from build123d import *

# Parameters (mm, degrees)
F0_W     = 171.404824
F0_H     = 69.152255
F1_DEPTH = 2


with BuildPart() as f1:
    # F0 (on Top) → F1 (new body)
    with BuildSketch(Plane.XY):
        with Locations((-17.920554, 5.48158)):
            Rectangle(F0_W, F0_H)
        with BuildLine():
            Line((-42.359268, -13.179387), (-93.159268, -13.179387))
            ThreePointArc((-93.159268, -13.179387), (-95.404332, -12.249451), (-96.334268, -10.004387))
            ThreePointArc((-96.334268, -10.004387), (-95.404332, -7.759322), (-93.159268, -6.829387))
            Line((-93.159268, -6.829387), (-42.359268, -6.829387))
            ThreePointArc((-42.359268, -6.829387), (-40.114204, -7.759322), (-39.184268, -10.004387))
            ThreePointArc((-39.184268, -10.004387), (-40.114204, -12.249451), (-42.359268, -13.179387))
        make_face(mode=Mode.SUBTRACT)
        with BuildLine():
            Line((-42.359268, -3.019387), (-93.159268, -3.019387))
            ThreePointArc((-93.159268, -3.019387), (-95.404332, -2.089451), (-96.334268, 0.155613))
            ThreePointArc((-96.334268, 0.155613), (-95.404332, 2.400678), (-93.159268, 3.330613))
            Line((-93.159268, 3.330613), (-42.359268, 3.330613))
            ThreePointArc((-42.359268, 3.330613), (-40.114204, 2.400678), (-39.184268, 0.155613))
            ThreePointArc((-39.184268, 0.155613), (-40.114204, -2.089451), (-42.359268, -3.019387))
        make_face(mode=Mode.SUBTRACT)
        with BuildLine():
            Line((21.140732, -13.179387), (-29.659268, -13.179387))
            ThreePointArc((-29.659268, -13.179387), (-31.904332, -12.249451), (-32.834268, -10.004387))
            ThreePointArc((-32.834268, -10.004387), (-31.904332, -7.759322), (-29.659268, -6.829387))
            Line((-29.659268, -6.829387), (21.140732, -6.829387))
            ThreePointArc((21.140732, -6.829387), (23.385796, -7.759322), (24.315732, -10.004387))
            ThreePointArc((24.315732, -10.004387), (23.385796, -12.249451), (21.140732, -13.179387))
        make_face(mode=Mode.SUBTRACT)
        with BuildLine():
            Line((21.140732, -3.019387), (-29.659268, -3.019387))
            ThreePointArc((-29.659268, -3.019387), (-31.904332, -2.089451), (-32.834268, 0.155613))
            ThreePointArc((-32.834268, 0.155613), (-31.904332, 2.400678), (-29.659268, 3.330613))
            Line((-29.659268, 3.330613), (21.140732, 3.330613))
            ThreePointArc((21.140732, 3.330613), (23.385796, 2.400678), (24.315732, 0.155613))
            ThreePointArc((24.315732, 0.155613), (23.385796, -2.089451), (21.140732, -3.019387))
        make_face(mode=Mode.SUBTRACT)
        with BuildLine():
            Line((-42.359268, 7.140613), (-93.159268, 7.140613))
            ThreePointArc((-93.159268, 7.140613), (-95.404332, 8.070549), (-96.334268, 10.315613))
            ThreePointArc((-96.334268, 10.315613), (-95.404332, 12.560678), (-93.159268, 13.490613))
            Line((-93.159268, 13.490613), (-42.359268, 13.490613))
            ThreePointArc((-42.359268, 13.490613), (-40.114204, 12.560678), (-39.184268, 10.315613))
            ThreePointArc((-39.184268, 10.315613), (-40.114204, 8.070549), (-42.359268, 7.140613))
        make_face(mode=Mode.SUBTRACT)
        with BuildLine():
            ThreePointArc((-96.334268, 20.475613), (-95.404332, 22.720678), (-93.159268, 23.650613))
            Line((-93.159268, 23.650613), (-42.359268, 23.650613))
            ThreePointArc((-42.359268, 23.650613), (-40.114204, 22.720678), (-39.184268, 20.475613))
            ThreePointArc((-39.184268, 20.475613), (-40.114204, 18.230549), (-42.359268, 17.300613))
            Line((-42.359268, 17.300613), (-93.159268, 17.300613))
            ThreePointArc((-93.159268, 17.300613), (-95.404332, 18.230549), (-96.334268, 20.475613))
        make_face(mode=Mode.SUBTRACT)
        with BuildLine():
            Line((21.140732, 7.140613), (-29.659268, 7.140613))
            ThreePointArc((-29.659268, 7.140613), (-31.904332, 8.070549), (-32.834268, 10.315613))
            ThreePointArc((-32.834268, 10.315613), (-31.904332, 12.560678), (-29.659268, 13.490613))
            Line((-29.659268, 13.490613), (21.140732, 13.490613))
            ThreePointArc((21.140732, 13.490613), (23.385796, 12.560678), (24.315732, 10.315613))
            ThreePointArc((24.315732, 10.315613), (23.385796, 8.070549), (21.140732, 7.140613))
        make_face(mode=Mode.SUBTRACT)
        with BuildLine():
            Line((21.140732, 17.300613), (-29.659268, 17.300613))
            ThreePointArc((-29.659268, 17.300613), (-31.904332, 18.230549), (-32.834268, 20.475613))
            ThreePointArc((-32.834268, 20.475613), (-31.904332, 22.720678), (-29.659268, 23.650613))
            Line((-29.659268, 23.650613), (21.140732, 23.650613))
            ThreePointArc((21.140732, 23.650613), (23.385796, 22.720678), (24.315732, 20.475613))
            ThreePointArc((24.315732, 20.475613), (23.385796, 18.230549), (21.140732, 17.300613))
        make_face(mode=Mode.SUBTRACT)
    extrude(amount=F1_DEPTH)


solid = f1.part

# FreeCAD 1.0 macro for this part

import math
import FreeCAD as App
import Part
import Sketcher
from FreeCAD import Vector
Q = App.Units.Quantity


def add_polygon(sketch, points):
    """Adds a closed chain of lines whose ends are joined by coincident constraints."""
    first, n = sketch.GeometryCount, len(points)
    for a, b in zip(points, points[1:] + points[:1]):
        sketch.addGeometry(Part.LineSegment(App.Vector(*a, 0), App.Vector(*b, 0)), False)
    for i in range(n):
        sketch.addConstraint(Sketcher.Constraint("Coincident", first + i, 2, first + (i + 1) % n, 1))

doc = App.newDocument("Part")
body = doc.addObject("PartDesign::Body", "Body")

sketch1 = body.newObject("Sketcher::SketchObject", "Sketch")
sketch1.AttachmentSupport = (doc.getObject("XY_Plane"), [""])
sketch1.MapMode = "FlatFace"
add_polygon(sketch1, [(-103.6, 40.1), (-103.6, -29.1), (67.8, -29.1), (67.8, 40.1)])
sketch1.addGeometry(Part.ArcOfCircle(Part.Circle(Vector(-42.4, -10, 0), Vector(0, 0, 1), 3.2), math.radians(-90), math.radians(0)), False)
sketch1.addGeometry(Part.LineSegment(Vector(-42.4, -13.2, 0), Vector(-93.2, -13.2, 0)), False)
sketch1.addGeometry(Part.ArcOfCircle(Part.Circle(Vector(-93.2, -10, 0), Vector(0, 0, 1), 3.2), math.radians(-180), math.radians(-90)), False)
sketch1.addGeometry(Part.ArcOfCircle(Part.Circle(Vector(-93.2, -10, 0), Vector(0, 0, 1), 3.2), math.radians(90), math.radians(180)), False)
sketch1.addGeometry(Part.LineSegment(Vector(-93.2, -6.8, 0), Vector(-42.4, -6.8, 0)), False)
sketch1.addGeometry(Part.ArcOfCircle(Part.Circle(Vector(-42.4, -10, 0), Vector(0, 0, 1), 3.2), math.radians(0), math.radians(90)), False)
sketch1.addGeometry(Part.ArcOfCircle(Part.Circle(Vector(-42.4, 0.2, 0), Vector(0, 0, 1), 3.2), math.radians(-90), math.radians(0)), False)
sketch1.addGeometry(Part.LineSegment(Vector(-42.4, -3, 0), Vector(-93.2, -3, 0)), False)
sketch1.addGeometry(Part.ArcOfCircle(Part.Circle(Vector(-93.2, 0.2, 0), Vector(0, 0, 1), 3.2), math.radians(-180), math.radians(-90)), False)
sketch1.addGeometry(Part.ArcOfCircle(Part.Circle(Vector(-93.2, 0.2, 0), Vector(0, 0, 1), 3.2), math.radians(90), math.radians(180)), False)
sketch1.addGeometry(Part.LineSegment(Vector(-93.2, 3.3, 0), Vector(-42.4, 3.3, 0)), False)
sketch1.addGeometry(Part.ArcOfCircle(Part.Circle(Vector(-42.4, 0.2, 0), Vector(0, 0, 1), 3.2), math.radians(0), math.radians(90)), False)
sketch1.addGeometry(Part.ArcOfCircle(Part.Circle(Vector(21.1, -10, 0), Vector(0, 0, 1), 3.2), math.radians(-90), math.radians(0)), False)
sketch1.addGeometry(Part.LineSegment(Vector(21.1, -13.2, 0), Vector(-29.7, -13.2, 0)), False)
sketch1.addGeometry(Part.ArcOfCircle(Part.Circle(Vector(-29.7, -10, 0), Vector(0, 0, 1), 3.2), math.radians(-180), math.radians(-90)), False)
sketch1.addGeometry(Part.ArcOfCircle(Part.Circle(Vector(-29.7, -10, 0), Vector(0, 0, 1), 3.2), math.radians(90), math.radians(180)), False)
sketch1.addGeometry(Part.LineSegment(Vector(-29.7, -6.8, 0), Vector(21.1, -6.8, 0)), False)
sketch1.addGeometry(Part.ArcOfCircle(Part.Circle(Vector(21.1, -10, 0), Vector(0, 0, 1), 3.2), math.radians(0), math.radians(90)), False)
sketch1.addGeometry(Part.ArcOfCircle(Part.Circle(Vector(21.1, 0.2, 0), Vector(0, 0, 1), 3.2), math.radians(-90), math.radians(0)), False)
sketch1.addGeometry(Part.LineSegment(Vector(21.1, -3, 0), Vector(-29.7, -3, 0)), False)
sketch1.addGeometry(Part.ArcOfCircle(Part.Circle(Vector(-29.7, 0.2, 0), Vector(0, 0, 1), 3.2), math.radians(-180), math.radians(-90)), False)
sketch1.addGeometry(Part.ArcOfCircle(Part.Circle(Vector(-29.7, 0.2, 0), Vector(0, 0, 1), 3.2), math.radians(90), math.radians(180)), False)
sketch1.addGeometry(Part.LineSegment(Vector(-29.7, 3.3, 0), Vector(21.1, 3.3, 0)), False)
sketch1.addGeometry(Part.ArcOfCircle(Part.Circle(Vector(21.1, 0.2, 0), Vector(0, 0, 1), 3.2), math.radians(0), math.radians(90)), False)
sketch1.addGeometry(Part.ArcOfCircle(Part.Circle(Vector(-42.4, 10.3, 0), Vector(0, 0, 1), 3.2), math.radians(-90), math.radians(0)), False)
sketch1.addGeometry(Part.LineSegment(Vector(-42.4, 7.1, 0), Vector(-93.2, 7.1, 0)), False)
sketch1.addGeometry(Part.ArcOfCircle(Part.Circle(Vector(-93.2, 10.3, 0), Vector(0, 0, 1), 3.2), math.radians(-180), math.radians(-90)), False)
sketch1.addGeometry(Part.ArcOfCircle(Part.Circle(Vector(-93.2, 10.3, 0), Vector(0, 0, 1), 3.2), math.radians(90), math.radians(180)), False)
sketch1.addGeometry(Part.LineSegment(Vector(-93.2, 13.5, 0), Vector(-42.4, 13.5, 0)), False)
sketch1.addGeometry(Part.ArcOfCircle(Part.Circle(Vector(-42.4, 10.3, 0), Vector(0, 0, 1), 3.2), math.radians(0), math.radians(90)), False)
sketch1.addGeometry(Part.ArcOfCircle(Part.Circle(Vector(-93.2, 20.5, 0), Vector(0, 0, 1), 3.2), math.radians(-180), math.radians(-90)), False)
sketch1.addGeometry(Part.ArcOfCircle(Part.Circle(Vector(-93.2, 20.5, 0), Vector(0, 0, 1), 3.2), math.radians(90), math.radians(180)), False)
sketch1.addGeometry(Part.LineSegment(Vector(-93.2, 23.7, 0), Vector(-42.4, 23.7, 0)), False)
sketch1.addGeometry(Part.ArcOfCircle(Part.Circle(Vector(-42.4, 20.5, 0), Vector(0, 0, 1), 3.2), math.radians(0), math.radians(90)), False)
sketch1.addGeometry(Part.ArcOfCircle(Part.Circle(Vector(-42.4, 20.5, 0), Vector(0, 0, 1), 3.2), math.radians(-90), math.radians(0)), False)
sketch1.addGeometry(Part.LineSegment(Vector(-42.4, 17.3, 0), Vector(-93.2, 17.3, 0)), False)
sketch1.addGeometry(Part.ArcOfCircle(Part.Circle(Vector(21.1, 10.3, 0), Vector(0, 0, 1), 3.2), math.radians(-90), math.radians(0)), False)
sketch1.addGeometry(Part.LineSegment(Vector(21.1, 7.1, 0), Vector(-29.7, 7.1, 0)), False)
sketch1.addGeometry(Part.ArcOfCircle(Part.Circle(Vector(-29.7, 10.3, 0), Vector(0, 0, 1), 3.2), math.radians(-180), math.radians(-90)), False)
sketch1.addGeometry(Part.ArcOfCircle(Part.Circle(Vector(-29.7, 10.3, 0), Vector(0, 0, 1), 3.2), math.radians(90), math.radians(180)), False)
sketch1.addGeometry(Part.LineSegment(Vector(-29.7, 13.5, 0), Vector(21.1, 13.5, 0)), False)
sketch1.addGeometry(Part.ArcOfCircle(Part.Circle(Vector(21.1, 10.3, 0), Vector(0, 0, 1), 3.2), math.radians(0), math.radians(90)), False)
sketch1.addGeometry(Part.ArcOfCircle(Part.Circle(Vector(21.1, 20.5, 0), Vector(0, 0, 1), 3.2), math.radians(-90), math.radians(0)), False)
sketch1.addGeometry(Part.LineSegment(Vector(21.1, 17.3, 0), Vector(-29.7, 17.3, 0)), False)
sketch1.addGeometry(Part.ArcOfCircle(Part.Circle(Vector(-29.7, 20.5, 0), Vector(0, 0, 1), 3.2), math.radians(-180), math.radians(-90)), False)
sketch1.addGeometry(Part.ArcOfCircle(Part.Circle(Vector(-29.7, 20.5, 0), Vector(0, 0, 1), 3.2), math.radians(90), math.radians(180)), False)
sketch1.addGeometry(Part.LineSegment(Vector(-29.7, 23.7, 0), Vector(21.1, 23.7, 0)), False)
sketch1.addGeometry(Part.ArcOfCircle(Part.Circle(Vector(21.1, 20.5, 0), Vector(0, 0, 1), 3.2), math.radians(0), math.radians(90)), False)
sketch1.addConstraint(Sketcher.Constraint("Tangent", 4, 1, 5, 1))
sketch1.addConstraint(Sketcher.Constraint("Tangent", 5, 2, 6, 2))
sketch1.addConstraint(Sketcher.Constraint("Tangent", 6, 1, 7, 2))
sketch1.addConstraint(Sketcher.Constraint("Tangent", 7, 1, 8, 1))
sketch1.addConstraint(Sketcher.Constraint("Tangent", 8, 2, 9, 2))
sketch1.addConstraint(Sketcher.Constraint("Tangent", 9, 1, 4, 2))
sketch1.addConstraint(Sketcher.Constraint("Tangent", 10, 1, 11, 1))
sketch1.addConstraint(Sketcher.Constraint("Tangent", 11, 2, 12, 2))
sketch1.addConstraint(Sketcher.Constraint("Tangent", 12, 1, 13, 2))
sketch1.addConstraint(Sketcher.Constraint("Tangent", 13, 1, 14, 1))
sketch1.addConstraint(Sketcher.Constraint("Tangent", 14, 2, 15, 2))
sketch1.addConstraint(Sketcher.Constraint("Tangent", 15, 1, 10, 2))
sketch1.addConstraint(Sketcher.Constraint("Tangent", 16, 1, 17, 1))
sketch1.addConstraint(Sketcher.Constraint("Tangent", 17, 2, 18, 2))
sketch1.addConstraint(Sketcher.Constraint("Tangent", 18, 1, 19, 2))
sketch1.addConstraint(Sketcher.Constraint("Tangent", 19, 1, 20, 1))
sketch1.addConstraint(Sketcher.Constraint("Tangent", 20, 2, 21, 2))
sketch1.addConstraint(Sketcher.Constraint("Tangent", 21, 1, 16, 2))
sketch1.addConstraint(Sketcher.Constraint("Tangent", 22, 1, 23, 1))
sketch1.addConstraint(Sketcher.Constraint("Tangent", 23, 2, 24, 2))
sketch1.addConstraint(Sketcher.Constraint("Tangent", 24, 1, 25, 2))
sketch1.addConstraint(Sketcher.Constraint("Tangent", 25, 1, 26, 1))
sketch1.addConstraint(Sketcher.Constraint("Tangent", 26, 2, 27, 2))
sketch1.addConstraint(Sketcher.Constraint("Tangent", 27, 1, 22, 2))
sketch1.addConstraint(Sketcher.Constraint("Tangent", 28, 1, 29, 1))
sketch1.addConstraint(Sketcher.Constraint("Tangent", 29, 2, 30, 2))
sketch1.addConstraint(Sketcher.Constraint("Tangent", 30, 1, 31, 2))
sketch1.addConstraint(Sketcher.Constraint("Tangent", 31, 1, 32, 1))
sketch1.addConstraint(Sketcher.Constraint("Tangent", 32, 2, 33, 2))
sketch1.addConstraint(Sketcher.Constraint("Tangent", 33, 1, 28, 2))
sketch1.addConstraint(Sketcher.Constraint("Tangent", 34, 1, 35, 2))
sketch1.addConstraint(Sketcher.Constraint("Tangent", 35, 1, 36, 1))
sketch1.addConstraint(Sketcher.Constraint("Tangent", 36, 2, 37, 2))
sketch1.addConstraint(Sketcher.Constraint("Tangent", 37, 1, 38, 2))
sketch1.addConstraint(Sketcher.Constraint("Tangent", 38, 1, 39, 1))
sketch1.addConstraint(Sketcher.Constraint("Tangent", 39, 2, 34, 2))
sketch1.addConstraint(Sketcher.Constraint("Tangent", 40, 1, 41, 1))
sketch1.addConstraint(Sketcher.Constraint("Tangent", 41, 2, 42, 2))
sketch1.addConstraint(Sketcher.Constraint("Tangent", 42, 1, 43, 2))
sketch1.addConstraint(Sketcher.Constraint("Tangent", 43, 1, 44, 1))
sketch1.addConstraint(Sketcher.Constraint("Tangent", 44, 2, 45, 2))
sketch1.addConstraint(Sketcher.Constraint("Tangent", 45, 1, 40, 2))
sketch1.addConstraint(Sketcher.Constraint("Tangent", 46, 1, 47, 1))
sketch1.addConstraint(Sketcher.Constraint("Tangent", 47, 2, 48, 2))
sketch1.addConstraint(Sketcher.Constraint("Tangent", 48, 1, 49, 2))
sketch1.addConstraint(Sketcher.Constraint("Tangent", 49, 1, 50, 1))
sketch1.addConstraint(Sketcher.Constraint("Tangent", 50, 2, 51, 2))
sketch1.addConstraint(Sketcher.Constraint("Tangent", 51, 1, 46, 2))
sketch1.addConstraint(Sketcher.Constraint("Vertical", 0))
sketch1.addConstraint(Sketcher.Constraint("Horizontal", 1))
sketch1.addConstraint(Sketcher.Constraint("Vertical", 2))
sketch1.addConstraint(Sketcher.Constraint("Horizontal", 3))
sketch1.addConstraint(Sketcher.Constraint("Horizontal", 5))
sketch1.addConstraint(Sketcher.Constraint("Horizontal", 8))
sketch1.addConstraint(Sketcher.Constraint("Horizontal", 11))
sketch1.addConstraint(Sketcher.Constraint("Horizontal", 14))
sketch1.addConstraint(Sketcher.Constraint("Horizontal", 17))
sketch1.addConstraint(Sketcher.Constraint("Horizontal", 20))
sketch1.addConstraint(Sketcher.Constraint("Horizontal", 23))
sketch1.addConstraint(Sketcher.Constraint("Horizontal", 26))
sketch1.addConstraint(Sketcher.Constraint("Horizontal", 29))
sketch1.addConstraint(Sketcher.Constraint("Horizontal", 32))
sketch1.addConstraint(Sketcher.Constraint("Horizontal", 36))
sketch1.addConstraint(Sketcher.Constraint("Horizontal", 39))
sketch1.addConstraint(Sketcher.Constraint("Horizontal", 41))
sketch1.addConstraint(Sketcher.Constraint("Horizontal", 44))
sketch1.addConstraint(Sketcher.Constraint("Horizontal", 47))
sketch1.addConstraint(Sketcher.Constraint("Horizontal", 50))
sketch1.addConstraint(Sketcher.Constraint("Equal", 4, 6))
sketch1.addConstraint(Sketcher.Constraint("Equal", 6, 7))
sketch1.addConstraint(Sketcher.Constraint("Equal", 9, 10))
sketch1.addConstraint(Sketcher.Constraint("Equal", 10, 12))
sketch1.addConstraint(Sketcher.Constraint("Equal", 12, 13))
sketch1.addConstraint(Sketcher.Constraint("Equal", 15, 16))
sketch1.addConstraint(Sketcher.Constraint("Equal", 16, 18))
sketch1.addConstraint(Sketcher.Constraint("Equal", 18, 19))
sketch1.addConstraint(Sketcher.Constraint("Equal", 21, 22))
sketch1.addConstraint(Sketcher.Constraint("Equal", 22, 24))
sketch1.addConstraint(Sketcher.Constraint("Equal", 24, 25))
sketch1.addConstraint(Sketcher.Constraint("Equal", 27, 28))
sketch1.addConstraint(Sketcher.Constraint("Equal", 28, 30))
sketch1.addConstraint(Sketcher.Constraint("Equal", 30, 31))
sketch1.addConstraint(Sketcher.Constraint("Equal", 33, 34))
sketch1.addConstraint(Sketcher.Constraint("Equal", 34, 35))
sketch1.addConstraint(Sketcher.Constraint("Equal", 35, 37))
sketch1.addConstraint(Sketcher.Constraint("Equal", 38, 40))
sketch1.addConstraint(Sketcher.Constraint("Equal", 40, 42))
sketch1.addConstraint(Sketcher.Constraint("Equal", 42, 43))
sketch1.addConstraint(Sketcher.Constraint("Equal", 45, 46))
sketch1.addConstraint(Sketcher.Constraint("Equal", 46, 48))
sketch1.addConstraint(Sketcher.Constraint("Equal", 48, 49))
sketch1.addConstraint(Sketcher.Constraint("Horizontal", 9, 3, 16, 3))
sketch1.addConstraint(Sketcher.Constraint("Horizontal", 15, 3, 22, 3))
sketch1.addConstraint(Sketcher.Constraint("Horizontal", 33, 3, 40, 3))
sketch1.addConstraint(Sketcher.Constraint("Horizontal", 38, 3, 46, 3))
sketch1.addConstraint(Sketcher.Constraint("Horizontal", 21, 3, 6, 1))
sketch1.addConstraint(Sketcher.Constraint("Horizontal", 6, 1, 9, 1))
sketch1.addConstraint(Sketcher.Constraint("Horizontal", 27, 3, 12, 1))
sketch1.addConstraint(Sketcher.Constraint("Horizontal", 12, 1, 15, 1))
sketch1.addConstraint(Sketcher.Constraint("Horizontal", 9, 1, 18, 1))
sketch1.addConstraint(Sketcher.Constraint("Horizontal", 18, 1, 21, 1))
sketch1.addConstraint(Sketcher.Constraint("Horizontal", 15, 1, 24, 1))
sketch1.addConstraint(Sketcher.Constraint("Horizontal", 24, 1, 27, 1))
sketch1.addConstraint(Sketcher.Constraint("Horizontal", 45, 3, 30, 1))
sketch1.addConstraint(Sketcher.Constraint("Horizontal", 30, 1, 33, 1))
sketch1.addConstraint(Sketcher.Constraint("Horizontal", 51, 3, 34, 1))
sketch1.addConstraint(Sketcher.Constraint("Horizontal", 34, 1, 37, 1))
sketch1.addConstraint(Sketcher.Constraint("Horizontal", 33, 1, 42, 1))
sketch1.addConstraint(Sketcher.Constraint("Horizontal", 42, 1, 45, 1))
sketch1.addConstraint(Sketcher.Constraint("Horizontal", 37, 1, 48, 1))
sketch1.addConstraint(Sketcher.Constraint("Horizontal", 48, 1, 51, 1))
sketch1.addConstraint(Sketcher.Constraint("Vertical", 9, 3, 10, 3))
sketch1.addConstraint(Sketcher.Constraint("Vertical", 7, 3, 12, 3))
sketch1.addConstraint(Sketcher.Constraint("Vertical", 21, 3, 22, 3))
sketch1.addConstraint(Sketcher.Constraint("Vertical", 19, 3, 24, 3))
sketch1.addConstraint(Sketcher.Constraint("Vertical", 15, 3, 28, 3))
sketch1.addConstraint(Sketcher.Constraint("Vertical", 13, 3, 30, 3))
sketch1.addConstraint(Sketcher.Constraint("Vertical", 31, 3, 34, 3))
sketch1.addConstraint(Sketcher.Constraint("Vertical", 33, 3, 37, 3))
sketch1.addConstraint(Sketcher.Constraint("Vertical", 27, 3, 40, 3))
sketch1.addConstraint(Sketcher.Constraint("Vertical", 25, 3, 42, 3))
sketch1.addConstraint(Sketcher.Constraint("Vertical", 45, 3, 46, 3))
sketch1.addConstraint(Sketcher.Constraint("Vertical", 43, 3, 48, 3))
sketch1.addConstraint(Sketcher.Constraint("Equal", 14, 17))
sketch1.addConstraint(Sketcher.Constraint("DistanceX", 5, 2, 5, 1, Q("2 in")))
sketch1.addConstraint(Sketcher.Constraint("Radius", 4, Q("0.125 in")))
sketch1.addConstraint(Sketcher.Constraint("DistanceX", 1, 1, 1, 2, 171.404824))
sketch1.addConstraint(Sketcher.Constraint("DistanceY", 0, 2, 0, 1, 69.152255))
sketch1.addConstraint(Sketcher.Constraint("DistanceX", 4, 3, -1, 1, 42.359268))
sketch1.addConstraint(Sketcher.Constraint("DistanceX", -1, 1, 16, 3, 21.140732))
sketch1.addConstraint(Sketcher.Constraint("DistanceX", -1, 1, 1, 2, 67.781858))
sketch1.addConstraint(Sketcher.Constraint("DistanceY", 4, 3, -1, 1, 10.004387))
sketch1.addConstraint(Sketcher.Constraint("DistanceY", -1, 1, 10, 3, 0.155613))
sketch1.addConstraint(Sketcher.Constraint("DistanceY", -1, 1, 28, 3, 10.315613))
sketch1.addConstraint(Sketcher.Constraint("DistanceY", -1, 1, 34, 3, 20.475613))
sketch1.addConstraint(Sketcher.Constraint("DistanceY", 0, 2, -1, 1, 29.094548))
pad1 = body.newObject("PartDesign::Pad", "Pad")
pad1.Profile = sketch1
pad1.Length = 2

doc.recompute()
